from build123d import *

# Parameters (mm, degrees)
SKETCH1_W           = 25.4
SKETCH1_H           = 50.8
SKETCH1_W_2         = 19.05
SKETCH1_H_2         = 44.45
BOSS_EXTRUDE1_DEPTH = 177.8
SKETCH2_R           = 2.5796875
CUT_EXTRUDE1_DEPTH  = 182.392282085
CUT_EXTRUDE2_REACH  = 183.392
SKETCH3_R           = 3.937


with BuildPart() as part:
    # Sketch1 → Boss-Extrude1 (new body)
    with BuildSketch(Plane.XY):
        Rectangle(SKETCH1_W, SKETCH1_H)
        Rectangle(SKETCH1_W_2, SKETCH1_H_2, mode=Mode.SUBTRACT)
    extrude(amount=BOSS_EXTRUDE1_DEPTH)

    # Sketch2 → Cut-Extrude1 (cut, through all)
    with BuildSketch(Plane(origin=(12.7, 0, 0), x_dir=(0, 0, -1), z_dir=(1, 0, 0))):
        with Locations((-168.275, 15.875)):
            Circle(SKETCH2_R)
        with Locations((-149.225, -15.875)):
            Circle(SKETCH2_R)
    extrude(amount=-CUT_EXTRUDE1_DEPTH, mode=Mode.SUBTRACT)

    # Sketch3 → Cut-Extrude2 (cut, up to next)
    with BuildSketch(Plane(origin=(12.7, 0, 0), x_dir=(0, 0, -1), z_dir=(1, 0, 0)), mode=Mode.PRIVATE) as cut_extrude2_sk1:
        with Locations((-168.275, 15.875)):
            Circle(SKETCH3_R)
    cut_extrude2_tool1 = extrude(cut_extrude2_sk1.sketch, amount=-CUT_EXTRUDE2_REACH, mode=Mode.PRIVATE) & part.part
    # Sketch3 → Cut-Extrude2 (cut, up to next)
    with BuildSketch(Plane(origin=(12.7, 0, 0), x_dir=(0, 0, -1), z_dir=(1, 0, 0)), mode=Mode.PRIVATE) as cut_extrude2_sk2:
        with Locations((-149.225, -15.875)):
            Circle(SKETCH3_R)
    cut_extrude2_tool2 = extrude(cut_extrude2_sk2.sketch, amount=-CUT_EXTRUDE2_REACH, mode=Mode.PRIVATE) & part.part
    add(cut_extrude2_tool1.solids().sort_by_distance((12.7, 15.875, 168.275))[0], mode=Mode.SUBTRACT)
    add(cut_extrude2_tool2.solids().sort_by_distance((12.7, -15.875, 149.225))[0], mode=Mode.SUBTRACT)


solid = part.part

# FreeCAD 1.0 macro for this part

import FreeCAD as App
import Part
import Sketcher
Q = App.Units.Quantity


def add_polygon(sketch, points):
    """Adds a closed chain of lines whose ends are joined by coincident constraints."""
    first, n = sketch.GeometryCount, len(points)
    for a, b in zip(points, points[1:] + points[:1]):
        sketch.addGeometry(Part.LineSegment(App.Vector(*a, 0), App.Vector(*b, 0)), False)
    for i in range(n):
        sketch.addConstraint(Sketcher.Constraint("Coincident", first + i, 2, first + (i + 1) % n, 1))

doc = App.newDocument("Part")
body = doc.addObject("PartDesign::Body", "Body")

# Sketch on XY plane
sketch1 = body.newObject("Sketcher::SketchObject", "Sketch")
sketch1.AttachmentSupport = (doc.getObject("XY_Plane"), [""])
sketch1.MapMode = "FlatFace"
add_polygon(sketch1, [(-13, 25), (-13, -25), (13, -25), (13, 25)])  # lines 0-3
add_polygon(sketch1, [(10, -22), (-10, -22), (-10, 22), (10, 22)])  # lines 4-7
sketch1.addConstraint([
    Sketcher.Constraint("Vertical", 0),
    Sketcher.Constraint("Horizontal", 1),
    Sketcher.Constraint("Vertical", 2),
    Sketcher.Constraint("Horizontal", 3),
    Sketcher.Constraint("Horizontal", 4),
    Sketcher.Constraint("Vertical", 5),
    Sketcher.Constraint("Horizontal", 6),
    Sketcher.Constraint("Vertical", 7),
    Sketcher.Constraint("Symmetric", 0, 2, 2, 2, -1, 1),
    Sketcher.Constraint("Symmetric", 4, 2, 6, 2, -1, 1),
    Sketcher.Constraint("DistanceX", 1, 1, 1, 2, Q("1 in")),
    Sketcher.Constraint("DistanceY", 0, 2, 0, 1, Q("2 in")),
    Sketcher.Constraint("DistanceX", 4, 2, 4, 1, Q("0.75 in")),
    Sketcher.Constraint("DistanceY", 5, 1, 5, 2, Q("1.75 in")),
])
pad1 = body.newObject("PartDesign::Pad", "Pad")
pad1.Profile = sketch1
pad1.Length = Q("7 in")

# Sketch on YZ plane
sketch2 = body.newObject("Sketcher::SketchObject", "Sketch001")
sketch2.AttachmentSupport = (doc.getObject("YZ_Plane"), [""])
sketch2.MapMode = "FlatFace"
sketch2.AttachmentOffset = App.Placement(App.Vector(0, 0, 0.5 * 25.4), App.Rotation())
sketch2.addGeometry([
    Part.Circle(App.Vector(15.9, 168.3, 0), App.Vector(0, 0, 1), 2.6),
    Part.Circle(App.Vector(-15.9, 149.2, 0), App.Vector(0, 0, 1), 2.6),
], False)
sketch2.addConstraint([
    Sketcher.Constraint("Equal", 0, 1),
    Sketcher.Constraint("Diameter", 0, Q("0.203125 in")),
    Sketcher.Constraint("DistanceX", 1, 3, 0, 3, Q("1.25 in")),
    Sketcher.Constraint("DistanceY", 1, 3, 0, 3, Q("0.75 in")),
    Sketcher.Constraint("DistanceX", -1, 1, 0, 3, Q("0.625 in")),
    Sketcher.Constraint("DistanceY", -1, 1, 0, 3, Q("6.625 in")),
])
pocket1 = body.newObject("PartDesign::Pocket", "Pocket")
pocket1.Profile = sketch2
pocket1.Type = "ThroughAll"

# Sketch on YZ plane
sketch3 = body.newObject("Sketcher::SketchObject", "Sketch002")
sketch3.AttachmentSupport = (doc.getObject("YZ_Plane"), [""])
sketch3.MapMode = "FlatFace"
sketch3.AttachmentOffset = App.Placement(App.Vector(0, 0, 0.5 * 25.4), App.Rotation())
sketch3.addGeometry(Part.Circle(App.Vector(15.9, 168.3, 0), App.Vector(0, 0, 1), 3.9), False)
sketch3.addConstraint([
    Sketcher.Constraint("Diameter", 0, Q("0.31 in")),
    Sketcher.Constraint("DistanceX", -1, 1, 0, 3, Q("0.625 in")),
    Sketcher.Constraint("DistanceY", -1, 1, 0, 3, Q("6.625 in")),
])
pocket2 = body.newObject("PartDesign::Pocket", "Pocket001")
pocket2.Profile = sketch3
pocket2.Length = Q("0.125 in")

# Sketch on YZ plane
sketch4 = body.newObject("Sketcher::SketchObject", "Sketch003")
sketch4.AttachmentSupport = (doc.getObject("YZ_Plane"), [""])
sketch4.MapMode = "FlatFace"
sketch4.AttachmentOffset = App.Placement(App.Vector(0, 0, 0.5 * 25.4), App.Rotation())
sketch4.addGeometry(Part.Circle(App.Vector(-15.9, 149.2, 0), App.Vector(0, 0, 1), 3.9), False)
sketch4.addConstraint([
    Sketcher.Constraint("Diameter", 0, Q("0.31 in")),
    Sketcher.Constraint("DistanceX", 0, 3, -1, 1, Q("0.625 in")),
    Sketcher.Constraint("DistanceY", -1, 1, 0, 3, Q("5.875 in")),
])
pocket3 = body.newObject("PartDesign::Pocket", "Pocket002")
pocket3.Profile = sketch4
pocket3.Length = Q("0.125 in")

doc.recompute()
